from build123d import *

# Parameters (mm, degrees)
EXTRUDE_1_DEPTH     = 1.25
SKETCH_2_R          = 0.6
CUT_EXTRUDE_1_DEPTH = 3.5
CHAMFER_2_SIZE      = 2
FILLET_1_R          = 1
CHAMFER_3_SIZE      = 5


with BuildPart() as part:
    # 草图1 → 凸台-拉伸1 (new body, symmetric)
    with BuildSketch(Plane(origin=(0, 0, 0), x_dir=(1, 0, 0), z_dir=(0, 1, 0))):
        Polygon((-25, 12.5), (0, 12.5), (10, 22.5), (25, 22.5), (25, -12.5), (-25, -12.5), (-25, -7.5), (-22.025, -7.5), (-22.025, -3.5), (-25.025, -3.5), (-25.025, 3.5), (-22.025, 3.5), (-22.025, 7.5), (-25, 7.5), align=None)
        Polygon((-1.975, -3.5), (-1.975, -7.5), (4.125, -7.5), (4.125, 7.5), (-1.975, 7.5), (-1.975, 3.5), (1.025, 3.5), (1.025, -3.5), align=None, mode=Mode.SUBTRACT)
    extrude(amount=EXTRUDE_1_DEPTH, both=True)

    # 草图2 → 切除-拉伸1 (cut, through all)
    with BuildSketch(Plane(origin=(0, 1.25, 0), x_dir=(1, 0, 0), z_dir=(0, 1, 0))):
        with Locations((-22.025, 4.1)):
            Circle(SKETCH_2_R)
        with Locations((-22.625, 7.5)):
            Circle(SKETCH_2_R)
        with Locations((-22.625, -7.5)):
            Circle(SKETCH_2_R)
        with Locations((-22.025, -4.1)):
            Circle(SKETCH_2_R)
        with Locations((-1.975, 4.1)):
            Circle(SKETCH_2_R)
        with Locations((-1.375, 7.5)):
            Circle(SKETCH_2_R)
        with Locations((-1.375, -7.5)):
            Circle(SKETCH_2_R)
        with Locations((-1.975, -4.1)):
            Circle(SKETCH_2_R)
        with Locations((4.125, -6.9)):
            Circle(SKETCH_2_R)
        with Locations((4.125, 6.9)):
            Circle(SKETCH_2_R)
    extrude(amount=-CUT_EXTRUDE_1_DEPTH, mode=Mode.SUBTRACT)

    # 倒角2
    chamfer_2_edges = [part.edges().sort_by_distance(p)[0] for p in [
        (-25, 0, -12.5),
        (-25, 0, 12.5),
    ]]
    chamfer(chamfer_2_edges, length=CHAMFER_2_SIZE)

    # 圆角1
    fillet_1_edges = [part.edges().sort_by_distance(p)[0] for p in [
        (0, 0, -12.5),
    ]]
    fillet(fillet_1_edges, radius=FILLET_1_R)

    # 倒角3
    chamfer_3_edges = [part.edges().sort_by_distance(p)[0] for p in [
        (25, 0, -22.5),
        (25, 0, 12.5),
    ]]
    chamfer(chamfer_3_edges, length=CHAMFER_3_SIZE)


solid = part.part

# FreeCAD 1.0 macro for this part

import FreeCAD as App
import Part
import Sketcher
from FreeCAD import Vector


def edges_at(feature, points):
    """Names of the edges that pass closest to the given points."""
    edges = feature.Shape.Edges
    near = lambda p: min(range(len(edges)), key=lambda i: edges[i].distToShape(Part.Vertex(*p))[0])
    return sorted({f"Edge{near(p) + 1}" for p in points})

doc = App.newDocument("Part")
body = doc.addObject("PartDesign::Body", "Body")

# Sketch on XZ plane
sketch1 = body.newObject("Sketcher::SketchObject", "Sketch")
sketch1.AttachmentSupport = (doc.getObject("XZ_Plane"), [""])
sketch1.MapMode = "FlatFace"
sketch1.addGeometry([
    Part.LineSegment(Vector(0, -12.5, 0), Vector(-25, -12.5, 0)),  # 0
    Part.LineSegment(Vector(-25, -12.5, 0), Vector(-25, -7.5, 0)),  # 1
    Part.LineSegment(Vector(-25, -7.5, 0), Vector(-22, -7.5, 0)),  # 2
    Part.LineSegment(Vector(-22, -7.5, 0), Vector(-22, -3.5, 0)),  # 3
    Part.LineSegment(Vector(-22, -3.5, 0), Vector(-25, -3.5, 0)),  # 4
    Part.LineSegment(Vector(-25, -3.5, 0), Vector(-25, 3.5, 0)),  # 5
    Part.LineSegment(Vector(-25, 3.5, 0), Vector(-22, 3.5, 0)),  # 6
    Part.LineSegment(Vector(-22, 3.5, 0), Vector(-22, 7.5, 0)),  # 7
    Part.LineSegment(Vector(-22, 7.5, 0), Vector(-25, 7.5, 0)),  # 8
    Part.LineSegment(Vector(-25, 7.5, 0), Vector(-25, 12.5, 0)),  # 9
    Part.LineSegment(Vector(-25, 12.5, 0), Vector(25, 12.5, 0)),  # 10
    Part.LineSegment(Vector(25, 12.5, 0), Vector(25, -22.5, 0)),  # 11
    Part.LineSegment(Vector(25, -22.5, 0), Vector(10, -22.5, 0)),  # 12
    Part.LineSegment(Vector(10, -22.5, 0), Vector(0, -12.5, 0)),  # 13
    Part.LineSegment(Vector(-2, 3.5, 0), Vector(1, 3.5, 0)),  # 14
    Part.LineSegment(Vector(1, 3.5, 0), Vector(1, -3.5, 0)),  # 15
    Part.LineSegment(Vector(1, -3.5, 0), Vector(-2, -3.5, 0)),  # 16
    Part.LineSegment(Vector(-2, -3.5, 0), Vector(-2, -7.5, 0)),  # 17
    Part.LineSegment(Vector(-2, -7.5, 0), Vector(4.1, -7.5, 0)),  # 18
    Part.LineSegment(Vector(4.1, -7.5, 0), Vector(4.1, 7.5, 0)),  # 19
    Part.LineSegment(Vector(4.1, 7.5, 0), Vector(-2, 7.5, 0)),  # 20
    Part.LineSegment(Vector(-2, 7.5, 0), Vector(-2, 3.5, 0)),  # 21
], False)
sketch1.addConstraint([
    Sketcher.Constraint("Coincident", 0, 2, 1, 1),
    Sketcher.Constraint("Coincident", 1, 2, 2, 1),
    Sketcher.Constraint("Coincident", 2, 2, 3, 1),
    Sketcher.Constraint("Coincident", 3, 2, 4, 1),
    Sketcher.Constraint("Coincident", 4, 2, 5, 1),
    Sketcher.Constraint("Coincident", 5, 2, 6, 1),
    Sketcher.Constraint("Coincident", 6, 2, 7, 1),
    Sketcher.Constraint("Coincident", 7, 2, 8, 1),
    Sketcher.Constraint("Coincident", 8, 2, 9, 1),
    Sketcher.Constraint("Coincident", 9, 2, 10, 1),
    Sketcher.Constraint("Coincident", 10, 2, 11, 1),
    Sketcher.Constraint("Coincident", 11, 2, 12, 1),
    Sketcher.Constraint("Coincident", 12, 2, 13, 1),
    Sketcher.Constraint("Coincident", 13, 2, 0, 1),
    Sketcher.Constraint("Coincident", 14, 2, 15, 1),
    Sketcher.Constraint("Coincident", 15, 2, 16, 1),
    Sketcher.Constraint("Coincident", 16, 2, 17, 1),
    Sketcher.Constraint("Coincident", 17, 2, 18, 1),
    Sketcher.Constraint("Coincident", 18, 2, 19, 1),
    Sketcher.Constraint("Coincident", 19, 2, 20, 1),
    Sketcher.Constraint("Coincident", 20, 2, 21, 1),
    Sketcher.Constraint("Coincident", 21, 2, 14, 1),
    Sketcher.Constraint("Horizontal", 0),
    Sketcher.Constraint("Vertical", 1),
    Sketcher.Constraint("Horizontal", 2),
    Sketcher.Constraint("Vertical", 3),
    Sketcher.Constraint("Horizontal", 4),
    Sketcher.Constraint("Vertical", 5),
    Sketcher.Constraint("Horizontal", 6),
    Sketcher.Constraint("Vertical", 7),
    Sketcher.Constraint("Horizontal", 8),
    Sketcher.Constraint("Vertical", 9),
    Sketcher.Constraint("Horizontal", 10),
    Sketcher.Constraint("Vertical", 11),
    Sketcher.Constraint("Horizontal", 12),
    Sketcher.Constraint("Horizontal", 14),
    Sketcher.Constraint("Vertical", 15),
    Sketcher.Constraint("Horizontal", 16),
    Sketcher.Constraint("Vertical", 17),
    Sketcher.Constraint("Horizontal", 18),
    Sketcher.Constraint("Vertical", 19),
    Sketcher.Constraint("Horizontal", 20),
    Sketcher.Constraint("Vertical", 21),
    Sketcher.Constraint("Symmetric", 0, 2, 10, 2, -1, 1),
    Sketcher.Constraint("Symmetric", 3, 2, 6, 2, -1),
    Sketcher.Constraint("Symmetric", 1, 2, 8, 2, -1),
    Sketcher.Constraint("Symmetric", 17, 2, 20, 2, -1),
    Sketcher.Constraint("PointOnObject", 13, 2, -2),
    Sketcher.Constraint("Horizontal", 6, 2, 14, 2),
    Sketcher.Constraint("Horizontal", 4, 2, 15, 2),
    Sketcher.Constraint("Horizontal", 2, 2, 17, 2),
    Sketcher.Constraint("Equal", 6, 14),
    Sketcher.Constraint("Equal", 12, 19),
    Sketcher.Constraint("DistanceX", 0, 2, 0, 1, 25.0),
    Sketcher.Constraint("DistanceX", 4, 2, 4, 1, 3.0),
    Sketcher.Constraint("DistanceX", 12, 2, 12, 1, 15.0),
    Sketcher.Constraint("DistanceY", 1, 1, 1, 2, 5.0),
    Sketcher.Constraint("DistanceY", 3, 1, 3, 2, 4.0),
    Sketcher.Constraint("DistanceY", 11, 2, 11, 1, 35.0),
    Sketcher.Constraint("DistanceX", 18, 1, 18, 2, 6.1),
    Sketcher.Constraint("DistanceX", 2, 1, 2, 2, 2.975),
    Sketcher.Constraint("DistanceX", 6, 2, 14, 2, 23.05),
])
pad1 = body.newObject("PartDesign::Pad", "Pad")
pad1.Profile = sketch1
pad1.Length = 2.5
pad1.Midplane = True

# Sketch on XZ plane
sketch2 = body.newObject("Sketcher::SketchObject", "Sketch001")
sketch2.AttachmentSupport = (doc.getObject("XZ_Plane"), [""])
sketch2.MapMode = "FlatFace"
sketch2.AttachmentOffset = App.Placement(Vector(0, 0, -1.25), App.Rotation())
sketch2.addGeometry([
    Part.Circle(Vector(-22, -4.1, 0), Vector(0, 0, 1), 0.6),  # 0
    Part.Circle(Vector(-22.6, -7.5, 0), Vector(0, 0, 1), 0.6),  # 1
    Part.Circle(Vector(-22.6, 7.5, 0), Vector(0, 0, 1), 0.6),  # 2
    Part.Circle(Vector(-22, 4.1, 0), Vector(0, 0, 1), 0.6),  # 3
    Part.Circle(Vector(-2, -4.1, 0), Vector(0, 0, 1), 0.6),  # 4
    Part.Circle(Vector(-1.4, -7.5, 0), Vector(0, 0, 1), 0.6),  # 5
    Part.Circle(Vector(-1.4, 7.5, 0), Vector(0, 0, 1), 0.6),  # 6
    Part.Circle(Vector(-2, 4.1, 0), Vector(0, 0, 1), 0.6),  # 7
    Part.Circle(Vector(4.1, 6.9, 0), Vector(0, 0, 1), 0.6),  # 8
    Part.Circle(Vector(4.1, -6.9, 0), Vector(0, 0, 1), 0.6),  # 9
], False)
sketch2.addConstraint([
    Sketcher.Constraint("Equal", 0, 1),
    Sketcher.Constraint("Equal", 1, 2),
    Sketcher.Constraint("Equal", 2, 3),
    Sketcher.Constraint("Equal", 3, 4),
    Sketcher.Constraint("Equal", 4, 5),
    Sketcher.Constraint("Equal", 5, 6),
    Sketcher.Constraint("Equal", 6, 7),
    Sketcher.Constraint("Equal", 7, 8),
    Sketcher.Constraint("Equal", 8, 9),
    Sketcher.Constraint("Symmetric", 1, 3, 2, 3, -1),
    Sketcher.Constraint("Symmetric", 0, 3, 3, 3, -1),
    Sketcher.Constraint("Symmetric", 5, 3, 6, 3, -1),
    Sketcher.Constraint("Symmetric", 4, 3, 7, 3, -1),
    Sketcher.Constraint("Symmetric", 8, 3, 9, 3, -1),
    Sketcher.Constraint("Horizontal", 0, 3, 4, 3),
    Sketcher.Constraint("Horizontal", 1, 3, 5, 3),
    Sketcher.Constraint("Diameter", 0, 1.2),
    Sketcher.Constraint("DistanceY", 1, 3, 2, 3, 15.0),
    Sketcher.Constraint("DistanceY", 4, 3, 8, 3, 11.0),
    Sketcher.Constraint("DistanceY", 0, 3, -1, 1, 4.1),
    Sketcher.Constraint("DistanceX", 1, 3, 0, 3, 0.6),
    Sketcher.Constraint("DistanceX", 4, 3, 5, 3, 0.6),
    Sketcher.Constraint("DistanceX", 6, 3, 8, 3, 5.5),
    Sketcher.Constraint("DistanceX", 0, 3, 4, 3, 20.05),
    Sketcher.Constraint("DistanceX", 0, 3, -1, 1, 22.025),
])
pocket1 = body.newObject("PartDesign::Pocket", "Pocket")
pocket1.Profile = sketch2
pocket1.Type = "ThroughAll"
pocket1.Reversed = True
doc.recompute()

chamfer = body.newObject("PartDesign::Chamfer", "Chamfer")
chamfer.Base = (pocket1, edges_at(pocket1, [(-25, 0, -12.5), (-25, 0, 12.5)]))
chamfer.Size = 2
doc.recompute()

fillet = body.newObject("PartDesign::Fillet", "Fillet")
fillet.Base = (chamfer, edges_at(chamfer, [(0, 0, -12.5)]))
fillet.Radius = 1
doc.recompute()

chamfer2 = body.newObject("PartDesign::Chamfer", "Chamfer001")
chamfer2.Base = (fillet, edges_at(fillet, [(25, 0, -22.5), (25, 0, 12.5)]))
chamfer2.Size = 5

doc.recompute()
